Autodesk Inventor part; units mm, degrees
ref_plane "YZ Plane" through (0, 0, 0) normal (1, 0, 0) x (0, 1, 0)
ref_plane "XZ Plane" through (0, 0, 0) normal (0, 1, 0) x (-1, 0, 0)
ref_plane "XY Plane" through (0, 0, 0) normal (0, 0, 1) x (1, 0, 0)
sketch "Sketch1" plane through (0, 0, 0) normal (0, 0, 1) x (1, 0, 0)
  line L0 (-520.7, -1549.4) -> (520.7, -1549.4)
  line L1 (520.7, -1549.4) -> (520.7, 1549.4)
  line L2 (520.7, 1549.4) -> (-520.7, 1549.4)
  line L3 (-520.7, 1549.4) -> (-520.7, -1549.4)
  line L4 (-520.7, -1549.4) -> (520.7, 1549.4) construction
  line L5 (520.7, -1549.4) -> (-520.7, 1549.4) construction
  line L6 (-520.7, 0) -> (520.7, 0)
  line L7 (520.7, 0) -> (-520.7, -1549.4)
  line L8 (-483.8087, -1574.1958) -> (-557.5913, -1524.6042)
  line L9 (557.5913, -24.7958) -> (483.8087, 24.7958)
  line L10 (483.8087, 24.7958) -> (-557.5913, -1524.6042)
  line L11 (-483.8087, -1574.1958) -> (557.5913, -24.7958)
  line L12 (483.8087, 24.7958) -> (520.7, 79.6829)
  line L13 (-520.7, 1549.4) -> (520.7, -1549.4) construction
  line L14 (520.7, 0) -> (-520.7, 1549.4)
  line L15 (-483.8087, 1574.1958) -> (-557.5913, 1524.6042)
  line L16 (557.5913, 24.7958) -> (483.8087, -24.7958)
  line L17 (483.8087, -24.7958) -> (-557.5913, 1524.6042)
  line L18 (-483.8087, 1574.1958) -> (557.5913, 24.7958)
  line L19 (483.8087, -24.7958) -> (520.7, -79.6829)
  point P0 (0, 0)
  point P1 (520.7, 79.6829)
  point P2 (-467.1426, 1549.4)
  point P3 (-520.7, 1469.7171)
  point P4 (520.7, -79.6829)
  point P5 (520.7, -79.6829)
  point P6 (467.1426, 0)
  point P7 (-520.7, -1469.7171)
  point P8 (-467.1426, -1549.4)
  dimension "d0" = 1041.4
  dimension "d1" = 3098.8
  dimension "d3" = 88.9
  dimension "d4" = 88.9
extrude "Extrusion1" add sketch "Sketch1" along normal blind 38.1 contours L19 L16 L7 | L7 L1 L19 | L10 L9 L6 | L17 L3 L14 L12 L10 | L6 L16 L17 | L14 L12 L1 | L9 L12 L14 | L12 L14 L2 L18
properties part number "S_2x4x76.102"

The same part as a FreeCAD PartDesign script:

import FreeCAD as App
import Part
import Sketcher

V = App.Vector
Q = App.Units.Quantity


def add_polygon(sketch, points):
    """Adds a closed chain of lines whose ends are joined by coincident constraints."""
    first, n = sketch.GeometryCount, len(points)
    for a, b in zip(points, points[1:] + points[:1]):
        sketch.addGeometry(Part.LineSegment(App.Vector(*a, 0), App.Vector(*b, 0)), False)
    for i in range(n):
        sketch.addConstraint(Sketcher.Constraint("Coincident", first + i, 2, first + (i + 1) % n, 1))

doc = App.newDocument("Part")
body = doc.addObject("PartDesign::Body", "Body")

sketch1 = body.newObject("Sketcher::SketchObject", "Sketch")
sketch1.AttachmentSupport = (doc.getObject("XY_Plane"), [""])
sketch1.MapMode = "FlatFace"
add_polygon(sketch1, [(484, -25), (521, -80), (521, 80), (-467, 1549), (-521, 1549), (-521, 1470)])
sketch1.addConstraint([
    Sketcher.Constraint("Vertical", 1),
    Sketcher.Constraint("Horizontal", 3),
    Sketcher.Constraint("Vertical", 4),
    Sketcher.Constraint("Parallel", 0, 2),
    Sketcher.Constraint("Parallel", 2, 5),
    Sketcher.Constraint("DistanceX", 3, 2, 1, 2, Q("41 in")),
    Sketcher.Constraint("DistanceY", -1, 1, 2, 2, Q("61 in")),
    Sketcher.Constraint("DistanceY", 0, 2, 4, 2, Q("61 in")),
    Sketcher.Constraint("DistanceX", -1, 1, 0, 2, Q("20.5 in")),
    Sketcher.Constraint("DistanceX", 3, 2, 3, 1, Q("53.5573 mm")),
    Sketcher.Constraint("DistanceY", 1, 1, 1, 2, Q("159.3658 mm")),
    Sketcher.Constraint("DistanceY", 0, 2, 5, 2, Q("2.1609 in")),
])
pad1 = body.newObject("PartDesign::Pad", "Pad")
pad1.Profile = sketch1
pad1.Length = Q("1.5 in")

doc.recompute()
